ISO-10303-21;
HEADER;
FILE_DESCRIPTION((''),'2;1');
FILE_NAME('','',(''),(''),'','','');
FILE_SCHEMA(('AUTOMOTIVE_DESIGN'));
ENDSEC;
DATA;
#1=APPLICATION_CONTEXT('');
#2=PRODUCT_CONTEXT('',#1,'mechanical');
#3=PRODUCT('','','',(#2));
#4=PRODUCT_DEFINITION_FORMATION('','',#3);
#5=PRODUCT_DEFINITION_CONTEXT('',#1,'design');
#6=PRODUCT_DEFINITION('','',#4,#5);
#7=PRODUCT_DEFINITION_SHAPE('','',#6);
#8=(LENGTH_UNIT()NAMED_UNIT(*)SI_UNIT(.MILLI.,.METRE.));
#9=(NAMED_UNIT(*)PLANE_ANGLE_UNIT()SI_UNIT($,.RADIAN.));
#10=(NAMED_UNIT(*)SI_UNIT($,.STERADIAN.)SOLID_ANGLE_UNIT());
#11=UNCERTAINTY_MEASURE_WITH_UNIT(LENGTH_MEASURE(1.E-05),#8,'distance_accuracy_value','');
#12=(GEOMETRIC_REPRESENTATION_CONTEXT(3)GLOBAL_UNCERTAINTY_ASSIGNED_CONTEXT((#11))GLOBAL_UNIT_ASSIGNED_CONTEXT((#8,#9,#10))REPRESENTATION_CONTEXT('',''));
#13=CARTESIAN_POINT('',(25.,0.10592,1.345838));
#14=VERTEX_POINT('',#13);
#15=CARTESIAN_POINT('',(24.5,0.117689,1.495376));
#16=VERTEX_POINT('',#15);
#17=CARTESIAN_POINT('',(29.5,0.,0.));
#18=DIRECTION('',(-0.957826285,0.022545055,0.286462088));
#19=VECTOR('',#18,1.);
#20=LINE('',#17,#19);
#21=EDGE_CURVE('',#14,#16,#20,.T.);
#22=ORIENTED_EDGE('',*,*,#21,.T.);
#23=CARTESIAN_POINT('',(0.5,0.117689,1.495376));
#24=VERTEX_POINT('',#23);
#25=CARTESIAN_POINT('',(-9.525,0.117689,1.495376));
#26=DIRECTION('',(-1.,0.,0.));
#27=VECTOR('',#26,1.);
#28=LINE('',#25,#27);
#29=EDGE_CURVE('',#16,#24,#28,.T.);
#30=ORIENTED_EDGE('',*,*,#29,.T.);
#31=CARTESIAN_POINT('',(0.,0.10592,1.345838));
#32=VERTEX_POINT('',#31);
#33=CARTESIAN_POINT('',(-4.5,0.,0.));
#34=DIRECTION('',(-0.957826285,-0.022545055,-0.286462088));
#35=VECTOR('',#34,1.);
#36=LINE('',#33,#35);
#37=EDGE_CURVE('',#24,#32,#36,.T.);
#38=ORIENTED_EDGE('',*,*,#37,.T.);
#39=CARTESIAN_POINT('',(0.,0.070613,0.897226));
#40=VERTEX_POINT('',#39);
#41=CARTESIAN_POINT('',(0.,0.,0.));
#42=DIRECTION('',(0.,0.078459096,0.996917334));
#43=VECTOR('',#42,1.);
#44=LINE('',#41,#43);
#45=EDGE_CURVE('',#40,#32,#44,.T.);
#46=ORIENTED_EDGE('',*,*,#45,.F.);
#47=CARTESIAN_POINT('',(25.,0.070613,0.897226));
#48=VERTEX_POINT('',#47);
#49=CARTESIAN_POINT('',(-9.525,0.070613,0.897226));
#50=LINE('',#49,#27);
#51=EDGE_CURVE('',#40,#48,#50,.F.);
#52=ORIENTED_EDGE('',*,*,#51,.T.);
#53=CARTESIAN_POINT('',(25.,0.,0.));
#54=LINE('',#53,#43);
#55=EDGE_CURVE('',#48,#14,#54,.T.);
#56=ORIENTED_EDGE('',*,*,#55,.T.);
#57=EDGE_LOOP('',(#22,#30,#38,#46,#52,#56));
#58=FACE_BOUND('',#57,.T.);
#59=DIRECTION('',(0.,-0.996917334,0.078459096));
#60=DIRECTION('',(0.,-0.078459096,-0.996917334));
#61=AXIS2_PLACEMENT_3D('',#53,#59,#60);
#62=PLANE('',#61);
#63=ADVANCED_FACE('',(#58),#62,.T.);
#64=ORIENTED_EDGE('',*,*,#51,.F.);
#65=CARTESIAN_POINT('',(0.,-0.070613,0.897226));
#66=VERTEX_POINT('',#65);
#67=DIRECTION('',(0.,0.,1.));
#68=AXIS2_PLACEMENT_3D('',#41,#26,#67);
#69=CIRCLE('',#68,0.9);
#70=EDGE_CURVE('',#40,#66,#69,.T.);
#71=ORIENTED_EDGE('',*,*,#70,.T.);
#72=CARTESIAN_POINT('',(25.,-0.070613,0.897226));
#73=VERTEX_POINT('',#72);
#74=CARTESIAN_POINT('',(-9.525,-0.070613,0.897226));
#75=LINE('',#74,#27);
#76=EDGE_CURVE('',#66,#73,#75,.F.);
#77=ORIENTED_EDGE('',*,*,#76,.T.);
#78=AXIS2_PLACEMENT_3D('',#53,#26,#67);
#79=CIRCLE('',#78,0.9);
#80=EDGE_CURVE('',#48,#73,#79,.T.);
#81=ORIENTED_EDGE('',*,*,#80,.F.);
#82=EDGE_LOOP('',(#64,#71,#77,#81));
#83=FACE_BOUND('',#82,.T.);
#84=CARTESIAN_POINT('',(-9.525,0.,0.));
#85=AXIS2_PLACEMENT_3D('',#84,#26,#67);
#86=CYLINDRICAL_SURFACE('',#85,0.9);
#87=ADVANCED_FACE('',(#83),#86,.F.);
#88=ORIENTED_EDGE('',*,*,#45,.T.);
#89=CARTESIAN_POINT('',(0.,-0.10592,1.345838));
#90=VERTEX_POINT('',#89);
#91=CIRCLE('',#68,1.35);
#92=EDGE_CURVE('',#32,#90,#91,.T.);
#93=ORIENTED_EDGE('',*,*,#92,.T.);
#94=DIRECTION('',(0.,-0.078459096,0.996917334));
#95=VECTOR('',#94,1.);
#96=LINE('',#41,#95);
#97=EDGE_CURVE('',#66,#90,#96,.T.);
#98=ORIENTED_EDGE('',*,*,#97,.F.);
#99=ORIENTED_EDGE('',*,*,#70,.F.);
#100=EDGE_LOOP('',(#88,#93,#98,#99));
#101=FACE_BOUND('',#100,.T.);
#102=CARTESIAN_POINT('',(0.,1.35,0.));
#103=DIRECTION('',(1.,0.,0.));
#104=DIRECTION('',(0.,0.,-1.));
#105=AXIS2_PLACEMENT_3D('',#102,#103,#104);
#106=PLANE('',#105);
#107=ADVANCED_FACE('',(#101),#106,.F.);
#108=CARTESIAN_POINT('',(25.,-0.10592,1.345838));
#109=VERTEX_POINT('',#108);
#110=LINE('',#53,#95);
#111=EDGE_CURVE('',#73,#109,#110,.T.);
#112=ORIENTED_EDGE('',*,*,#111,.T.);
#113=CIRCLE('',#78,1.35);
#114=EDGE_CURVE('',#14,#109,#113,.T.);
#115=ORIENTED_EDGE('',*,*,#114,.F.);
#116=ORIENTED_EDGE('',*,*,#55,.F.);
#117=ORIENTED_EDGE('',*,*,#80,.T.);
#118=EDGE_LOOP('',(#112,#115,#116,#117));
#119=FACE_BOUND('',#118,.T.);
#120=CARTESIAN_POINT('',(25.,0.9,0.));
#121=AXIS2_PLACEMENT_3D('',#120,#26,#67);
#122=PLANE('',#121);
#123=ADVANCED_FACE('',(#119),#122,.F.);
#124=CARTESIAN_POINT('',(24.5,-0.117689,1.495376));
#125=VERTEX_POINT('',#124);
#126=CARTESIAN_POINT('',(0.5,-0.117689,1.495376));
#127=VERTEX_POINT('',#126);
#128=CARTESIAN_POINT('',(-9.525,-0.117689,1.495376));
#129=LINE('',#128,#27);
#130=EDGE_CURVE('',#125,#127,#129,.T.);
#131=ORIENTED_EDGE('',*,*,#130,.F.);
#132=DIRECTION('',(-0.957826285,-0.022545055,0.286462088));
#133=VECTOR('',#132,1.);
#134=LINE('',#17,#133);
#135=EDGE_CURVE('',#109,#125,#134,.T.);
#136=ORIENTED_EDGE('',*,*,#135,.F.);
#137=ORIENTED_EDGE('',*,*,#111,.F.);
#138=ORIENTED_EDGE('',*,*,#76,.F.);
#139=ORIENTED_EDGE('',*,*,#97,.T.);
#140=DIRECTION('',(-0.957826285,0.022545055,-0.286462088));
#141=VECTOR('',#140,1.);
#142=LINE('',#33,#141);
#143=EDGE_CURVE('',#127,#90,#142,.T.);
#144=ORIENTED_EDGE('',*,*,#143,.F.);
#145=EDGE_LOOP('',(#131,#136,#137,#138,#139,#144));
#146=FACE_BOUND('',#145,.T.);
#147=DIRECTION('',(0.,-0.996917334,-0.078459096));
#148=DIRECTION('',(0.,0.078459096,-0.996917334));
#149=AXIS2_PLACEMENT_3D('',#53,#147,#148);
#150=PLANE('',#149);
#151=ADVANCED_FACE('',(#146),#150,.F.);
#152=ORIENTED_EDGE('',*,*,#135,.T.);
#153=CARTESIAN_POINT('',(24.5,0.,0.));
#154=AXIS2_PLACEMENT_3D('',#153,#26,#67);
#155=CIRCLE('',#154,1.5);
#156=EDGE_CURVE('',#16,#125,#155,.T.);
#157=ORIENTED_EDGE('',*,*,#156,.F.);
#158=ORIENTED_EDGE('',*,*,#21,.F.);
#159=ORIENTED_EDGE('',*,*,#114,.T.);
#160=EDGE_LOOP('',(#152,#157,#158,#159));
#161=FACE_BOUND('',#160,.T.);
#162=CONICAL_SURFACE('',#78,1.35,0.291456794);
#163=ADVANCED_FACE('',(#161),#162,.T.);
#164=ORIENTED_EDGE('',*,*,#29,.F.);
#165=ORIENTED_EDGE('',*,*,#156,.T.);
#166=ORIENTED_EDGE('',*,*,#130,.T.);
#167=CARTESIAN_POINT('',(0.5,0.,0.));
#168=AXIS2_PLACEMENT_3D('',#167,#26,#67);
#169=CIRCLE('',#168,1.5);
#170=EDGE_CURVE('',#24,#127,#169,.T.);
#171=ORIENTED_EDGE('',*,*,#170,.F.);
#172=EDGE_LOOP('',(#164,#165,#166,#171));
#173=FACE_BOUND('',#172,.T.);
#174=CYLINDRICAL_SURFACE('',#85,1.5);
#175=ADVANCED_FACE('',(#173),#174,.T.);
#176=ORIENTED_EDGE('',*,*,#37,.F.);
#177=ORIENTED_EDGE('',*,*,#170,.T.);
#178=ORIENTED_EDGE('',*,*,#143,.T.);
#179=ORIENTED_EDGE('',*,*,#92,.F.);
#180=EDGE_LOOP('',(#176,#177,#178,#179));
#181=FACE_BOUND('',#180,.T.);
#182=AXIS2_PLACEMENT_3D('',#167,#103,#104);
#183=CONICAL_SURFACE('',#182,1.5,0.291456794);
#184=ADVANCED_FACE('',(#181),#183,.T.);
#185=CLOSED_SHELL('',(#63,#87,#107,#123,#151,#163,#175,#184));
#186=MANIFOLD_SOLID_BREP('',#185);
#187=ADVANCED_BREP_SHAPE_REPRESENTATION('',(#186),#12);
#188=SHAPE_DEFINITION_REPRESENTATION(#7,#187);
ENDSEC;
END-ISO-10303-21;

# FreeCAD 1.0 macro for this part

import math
import FreeCAD as App
import Part
import Sketcher
Q = App.Units.Quantity


def add_polygon(sketch, points):
    """Adds a closed chain of lines whose ends are joined by coincident constraints."""
    first, n = sketch.GeometryCount, len(points)
    for a, b in zip(points, points[1:] + points[:1]):
        sketch.addGeometry(Part.LineSegment(App.Vector(*a, 0), App.Vector(*b, 0)), False)
    for i in range(n):
        sketch.addConstraint(Sketcher.Constraint("Coincident", first + i, 2, first + (i + 1) % n, 1))

doc = App.newDocument("Part")
body = doc.addObject("PartDesign::Body", "Body")

sketch1 = doc.addObject("Sketcher::SketchObject", "Sketch")
body.addObject(sketch1)
sketch1.AttachmentSupport = (doc.XY_Plane, [""])
sketch1.MapMode = "FlatFace"
add_polygon(sketch1, [(0, 0.9), (25, 0.9), (25, 1.35), (24.5, 1.5), (0.5, 1.5), (0, 1.35)])
sketch1.addConstraint([
    Sketcher.Constraint("Horizontal", 0),
    Sketcher.Constraint("Vertical", 1),
    Sketcher.Constraint("Horizontal", 3),
    Sketcher.Constraint("Vertical", 5),
    Sketcher.Constraint("PointOnObject", 4, 2, -2),
    Sketcher.Constraint("Horizontal", 1, 2, 4, 2),
    Sketcher.Constraint("Equal", 2, 4),
    Sketcher.Constraint("DistanceX", 0, 1, 0, 2, 25.0),
    Sketcher.Constraint("DistanceX", 3, 2, 3, 1, 24.0),
    Sketcher.Constraint("DistanceY", 1, 1, 1, 2, 0.45),
    Sketcher.Constraint("DistanceY", -1, 1, 0, 2, 0.9),
    Sketcher.Constraint("DistanceY", -1, 1, 2, 2, 1.5),
])
revolution = doc.addObject("PartDesign::Revolution", "Revolution")
body.addObject(revolution)
revolution.Profile = sketch1
revolution.ReferenceAxis = (sketch1, ["H_Axis"])
revolution.Angle = 360

sketch2 = doc.addObject("Sketcher::SketchObject", "Sketch001")
body.addObject(sketch2)
sketch2.AttachmentSupport = (doc.YZ_Plane, [""])
sketch2.MapMode = "FlatFace"
sketch2.addGeometry([
    Part.LineSegment(App.Vector(0, 0, 0), App.Vector(-0.12, 1.53, 0)),
    Part.ArcOfCircle(Part.Circle(App.Vector(0, 0, 0), App.Vector(0, 0, 1), 1.53), math.radians(85.5), math.radians(94.5)),
    Part.LineSegment(App.Vector(0.12, 1.53, 0), App.Vector(0, 0, 0)),
], False)
sketch2.addConstraint([
    Sketcher.Constraint("Coincident", 0, 2, 1, 2),
    Sketcher.Constraint("Coincident", 1, 1, 2, 1),
    Sketcher.Constraint("Coincident", 2, 2, 0, 1),
    Sketcher.Constraint("Coincident", 1, 3, -1, 1),
    Sketcher.Constraint("Coincident", 2, 2, -1, 1),
    Sketcher.Constraint("Horizontal", 0, 2, 1, 1),
    Sketcher.Constraint("Radius", 1, 1.53),
    Sketcher.Constraint("Angle", 0, Q("94.5 deg")),
])
pocket1 = doc.addObject("PartDesign::Pocket", "Pocket")
body.addObject(pocket1)
pocket1.Profile = sketch2
pocket1.Type = "ThroughAll"
pocket1.Reversed = True

doc.recompute()
